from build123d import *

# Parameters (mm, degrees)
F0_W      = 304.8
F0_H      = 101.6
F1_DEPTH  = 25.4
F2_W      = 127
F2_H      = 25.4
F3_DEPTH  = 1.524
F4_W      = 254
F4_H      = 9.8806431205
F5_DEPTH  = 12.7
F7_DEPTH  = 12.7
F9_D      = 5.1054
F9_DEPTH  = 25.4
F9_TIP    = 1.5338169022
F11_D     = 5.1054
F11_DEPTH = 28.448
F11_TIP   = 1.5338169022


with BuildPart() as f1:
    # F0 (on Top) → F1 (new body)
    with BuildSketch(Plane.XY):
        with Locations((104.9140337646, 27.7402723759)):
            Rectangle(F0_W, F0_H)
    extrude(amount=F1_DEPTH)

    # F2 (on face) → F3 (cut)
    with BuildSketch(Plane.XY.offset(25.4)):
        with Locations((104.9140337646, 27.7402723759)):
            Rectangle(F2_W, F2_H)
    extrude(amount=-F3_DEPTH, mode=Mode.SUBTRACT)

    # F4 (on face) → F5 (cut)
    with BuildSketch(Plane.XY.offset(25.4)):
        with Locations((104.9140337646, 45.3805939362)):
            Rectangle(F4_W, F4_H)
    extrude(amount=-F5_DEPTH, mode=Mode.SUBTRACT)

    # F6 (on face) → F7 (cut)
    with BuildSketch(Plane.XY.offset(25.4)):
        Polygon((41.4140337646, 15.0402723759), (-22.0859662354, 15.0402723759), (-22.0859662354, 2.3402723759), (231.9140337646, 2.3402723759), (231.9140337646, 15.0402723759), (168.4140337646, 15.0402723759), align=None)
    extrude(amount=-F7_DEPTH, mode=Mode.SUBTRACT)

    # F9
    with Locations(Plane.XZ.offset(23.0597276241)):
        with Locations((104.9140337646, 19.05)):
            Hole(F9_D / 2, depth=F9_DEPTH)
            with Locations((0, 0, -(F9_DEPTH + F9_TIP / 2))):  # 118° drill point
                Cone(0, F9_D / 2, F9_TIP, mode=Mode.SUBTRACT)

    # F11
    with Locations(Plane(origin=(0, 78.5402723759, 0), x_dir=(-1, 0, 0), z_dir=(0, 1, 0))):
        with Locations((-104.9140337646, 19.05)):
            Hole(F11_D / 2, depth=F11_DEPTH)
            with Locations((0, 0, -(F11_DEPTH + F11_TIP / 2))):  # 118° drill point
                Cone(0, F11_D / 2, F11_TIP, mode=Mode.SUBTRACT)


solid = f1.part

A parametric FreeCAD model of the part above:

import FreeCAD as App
import Part
import Sketcher

V = App.Vector
Q = App.Units.Quantity


def add_polygon(sketch, points):
    """Adds a closed chain of lines whose ends are joined by coincident constraints."""
    first, n = sketch.GeometryCount, len(points)
    for a, b in zip(points, points[1:] + points[:1]):
        sketch.addGeometry(Part.LineSegment(App.Vector(*a, 0), App.Vector(*b, 0)), False)
    for i in range(n):
        sketch.addConstraint(Sketcher.Constraint("Coincident", first + i, 2, first + (i + 1) % n, 1))

doc = App.newDocument("Part")
params = doc.addObject("Spreadsheet::Sheet", "Params")
for row, (alias, value) in enumerate([
    ("sketch1_width", "12 in"),
    ("sketch1_height", "4 in"),
    ("pad1_length", "1 in"),
    ("sketch2_width", "5 in"),
    ("sketch2_height", "1 in"),
    ("pocket1_length", "0.06 in"),
    ("sketch3_width", "10 in"),
    ("pocket2_length", "0.5 in"),
    ("sketch4_width", "10 in"),
    ("sketch4_height", "0.5 in"),
    ("pocket3_length", "0.5 in"),
    ("sketch5_diameter", "0.201 in"),
    ("hole_diameter", "0.201 in"),
    ("hole_depth", "1 in"),
    ("sketch6_diameter", "0.201 in"),
    ("hole2_diameter", "0.201 in"),
    ("hole2_depth", "1.12 in"),
], start=1):
    params.set(f"A{row}", alias)
    params.set(f"B{row}", "=" + value)
    params.setAlias(f"B{row}", alias)

body = doc.addObject("PartDesign::Body", "Body")

# Sketch on XY plane
sketch1 = doc.addObject("Sketcher::SketchObject", "Sketch")
body.addObject(sketch1)
sketch1.AttachmentSupport = (doc.XY_Plane, [""])
sketch1.MapMode = "FlatFace"
add_polygon(sketch1, [(-47, 79), (-47, -23), (257, -23), (257, 79)])  # lines 0-3
sketch1.addConstraint(Sketcher.Constraint("Vertical", 0))
sketch1.addConstraint(Sketcher.Constraint("Horizontal", 1))
sketch1.addConstraint(Sketcher.Constraint("Vertical", 2))
sketch1.addConstraint(Sketcher.Constraint("Horizontal", 3))
sketch1.addConstraint(Sketcher.Constraint("DistanceX", 1, 1, 1, 2, Q("12 in")))
sketch1.addConstraint(Sketcher.Constraint("DistanceY", 0, 2, 0, 1, Q("4 in")))
sketch1.addConstraint(Sketcher.Constraint("DistanceX", 0, 2, -1, 1, 47.485966))
sketch1.addConstraint(Sketcher.Constraint("DistanceY", 0, 2, -1, 1, 23.059728))
sketch1.setExpression("Constraints[8]", "Params.sketch1_width")
sketch1.setExpression("Constraints[9]", "Params.sketch1_height")
pad1 = doc.addObject("PartDesign::Pad", "Pad")
body.addObject(pad1)
pad1.Profile = sketch1
pad1.setExpression("Length", "Params.pad1_length")

# Sketch on XY plane
sketch2 = doc.addObject("Sketcher::SketchObject", "Sketch001")
body.addObject(sketch2)
sketch2.AttachmentSupport = (doc.XY_Plane, [""])
sketch2.MapMode = "FlatFace"
sketch2.AttachmentOffset = App.Placement(V(0, 0, 1 * 25.4), App.Rotation())
add_polygon(sketch2, [(41, 40), (41, 15), (168, 15), (168, 40)])  # lines 0-3
sketch2.addConstraint(Sketcher.Constraint("Vertical", 0))
sketch2.addConstraint(Sketcher.Constraint("Horizontal", 1))
sketch2.addConstraint(Sketcher.Constraint("Vertical", 2))
sketch2.addConstraint(Sketcher.Constraint("Horizontal", 3))
sketch2.addConstraint(Sketcher.Constraint("DistanceX", 1, 1, 1, 2, Q("5 in")))
sketch2.addConstraint(Sketcher.Constraint("DistanceY", 0, 2, 0, 1, Q("1 in")))
sketch2.addConstraint(Sketcher.Constraint("DistanceX", -1, 1, 0, 2, 41.414034))
sketch2.addConstraint(Sketcher.Constraint("DistanceY", -1, 1, 0, 2, 15.040272))
sketch2.setExpression("Constraints[8]", "Params.sketch2_width")
sketch2.setExpression("Constraints[9]", "Params.sketch2_height")
pocket1 = doc.addObject("PartDesign::Pocket", "Pocket")
body.addObject(pocket1)
pocket1.Profile = sketch2
pocket1.setExpression("Length", "Params.pocket1_length")

# Sketch on XY plane
sketch3 = doc.addObject("Sketcher::SketchObject", "Sketch002")
body.addObject(sketch3)
sketch3.AttachmentSupport = (doc.XY_Plane, [""])
sketch3.MapMode = "FlatFace"
sketch3.AttachmentOffset = App.Placement(V(0, 0, 1 * 25.4), App.Rotation())
add_polygon(sketch3, [(-22, 50), (-22, 40), (232, 40), (232, 50)])  # lines 0-3
sketch3.addConstraint(Sketcher.Constraint("Vertical", 0))
sketch3.addConstraint(Sketcher.Constraint("Horizontal", 1))
sketch3.addConstraint(Sketcher.Constraint("Vertical", 2))
sketch3.addConstraint(Sketcher.Constraint("Horizontal", 3))
sketch3.addConstraint(Sketcher.Constraint("DistanceX", 1, 1, 1, 2, Q("10 in")))
sketch3.addConstraint(Sketcher.Constraint("DistanceY", 0, 2, 0, 1, 9.880643))
sketch3.addConstraint(Sketcher.Constraint("DistanceX", 0, 2, -1, 1, 22.085966))
sketch3.addConstraint(Sketcher.Constraint("DistanceY", -1, 1, 0, 2, 40.440272))
sketch3.setExpression("Constraints[8]", "Params.sketch3_width")
pocket2 = doc.addObject("PartDesign::Pocket", "Pocket001")
body.addObject(pocket2)
pocket2.Profile = sketch3
pocket2.setExpression("Length", "Params.pocket2_length")

# Sketch on XY plane
sketch4 = doc.addObject("Sketcher::SketchObject", "Sketch003")
body.addObject(sketch4)
sketch4.AttachmentSupport = (doc.XY_Plane, [""])
sketch4.MapMode = "FlatFace"
sketch4.AttachmentOffset = App.Placement(V(0, 0, 1 * 25.4), App.Rotation())
add_polygon(sketch4, [(-22, 15), (-22, 2), (232, 2), (232, 15)])  # lines 0-3
sketch4.addConstraint(Sketcher.Constraint("Vertical", 0))
sketch4.addConstraint(Sketcher.Constraint("Horizontal", 1))
sketch4.addConstraint(Sketcher.Constraint("Vertical", 2))
sketch4.addConstraint(Sketcher.Constraint("Horizontal", 3))
sketch4.addConstraint(Sketcher.Constraint("DistanceX", 1, 1, 1, 2, Q("10 in")))
sketch4.addConstraint(Sketcher.Constraint("DistanceY", 0, 2, 0, 1, Q("0.5 in")))
sketch4.addConstraint(Sketcher.Constraint("DistanceX", 0, 2, -1, 1, 22.085966))
sketch4.addConstraint(Sketcher.Constraint("DistanceY", -1, 1, 0, 2, 2.340272))
sketch4.setExpression("Constraints[8]", "Params.sketch4_width")
sketch4.setExpression("Constraints[9]", "Params.sketch4_height")
pocket3 = doc.addObject("PartDesign::Pocket", "Pocket002")
body.addObject(pocket3)
pocket3.Profile = sketch4
pocket3.setExpression("Length", "Params.pocket3_length")

# Sketch on XZ plane
sketch5 = doc.addObject("Sketcher::SketchObject", "Sketch004")
body.addObject(sketch5)
sketch5.AttachmentSupport = (doc.XZ_Plane, [""])
sketch5.MapMode = "FlatFace"
sketch5.AttachmentOffset = App.Placement(V(0, 0, 23.059728), App.Rotation())
sketch5.addGeometry(Part.Circle(V(104.9, 19.1, 0), V(0, 0, 1), 2.6), False)
sketch5.addConstraint(Sketcher.Constraint("Diameter", 0, Q("0.201 in")))
sketch5.addConstraint(Sketcher.Constraint("DistanceY", -1, 1, 0, 3, Q("0.75 in")))
sketch5.addConstraint(Sketcher.Constraint("DistanceX", -1, 1, 0, 3, 104.914034))
sketch5.setExpression("Constraints[0]", "Params.sketch5_diameter")
doc.recompute()
hole = doc.addObject("PartDesign::Hole", "Hole")
body.addObject(hole)
hole.Profile = sketch5
hole.ThreadType = "None"
hole.setExpression("Diameter", "Params.hole_diameter")
hole.DepthType = "Dimension"
hole.setExpression("Depth", "Params.hole_depth")
hole.DrillPoint = "Angled"
hole.DrillPointAngle = 118

# Sketch on XZ plane
sketch6 = doc.addObject("Sketcher::SketchObject", "Sketch005")
body.addObject(sketch6)
sketch6.AttachmentSupport = (doc.XZ_Plane, [""])
sketch6.MapMode = "FlatFace"
sketch6.AttachmentOffset = App.Placement(V(0, 0, -78.540272), App.Rotation())
sketch6.addGeometry(Part.Circle(V(104.9, 19.1, 0), V(0, 0, 1), 2.6), False)
sketch6.addConstraint(Sketcher.Constraint("Diameter", 0, Q("0.201 in")))
sketch6.addConstraint(Sketcher.Constraint("DistanceY", -1, 1, 0, 3, Q("0.75 in")))
sketch6.addConstraint(Sketcher.Constraint("DistanceX", -1, 1, 0, 3, 104.914034))
sketch6.setExpression("Constraints[0]", "Params.sketch6_diameter")
doc.recompute()
hole2 = doc.addObject("PartDesign::Hole", "Hole001")
body.addObject(hole2)
hole2.Profile = sketch6
hole2.ThreadType = "None"
hole2.setExpression("Diameter", "Params.hole2_diameter")
hole2.DepthType = "Dimension"
hole2.setExpression("Depth", "Params.hole2_depth")
hole2.DrillPoint = "Angled"
hole2.DrillPointAngle = 118
hole2.Reversed = True

doc.recompute()
